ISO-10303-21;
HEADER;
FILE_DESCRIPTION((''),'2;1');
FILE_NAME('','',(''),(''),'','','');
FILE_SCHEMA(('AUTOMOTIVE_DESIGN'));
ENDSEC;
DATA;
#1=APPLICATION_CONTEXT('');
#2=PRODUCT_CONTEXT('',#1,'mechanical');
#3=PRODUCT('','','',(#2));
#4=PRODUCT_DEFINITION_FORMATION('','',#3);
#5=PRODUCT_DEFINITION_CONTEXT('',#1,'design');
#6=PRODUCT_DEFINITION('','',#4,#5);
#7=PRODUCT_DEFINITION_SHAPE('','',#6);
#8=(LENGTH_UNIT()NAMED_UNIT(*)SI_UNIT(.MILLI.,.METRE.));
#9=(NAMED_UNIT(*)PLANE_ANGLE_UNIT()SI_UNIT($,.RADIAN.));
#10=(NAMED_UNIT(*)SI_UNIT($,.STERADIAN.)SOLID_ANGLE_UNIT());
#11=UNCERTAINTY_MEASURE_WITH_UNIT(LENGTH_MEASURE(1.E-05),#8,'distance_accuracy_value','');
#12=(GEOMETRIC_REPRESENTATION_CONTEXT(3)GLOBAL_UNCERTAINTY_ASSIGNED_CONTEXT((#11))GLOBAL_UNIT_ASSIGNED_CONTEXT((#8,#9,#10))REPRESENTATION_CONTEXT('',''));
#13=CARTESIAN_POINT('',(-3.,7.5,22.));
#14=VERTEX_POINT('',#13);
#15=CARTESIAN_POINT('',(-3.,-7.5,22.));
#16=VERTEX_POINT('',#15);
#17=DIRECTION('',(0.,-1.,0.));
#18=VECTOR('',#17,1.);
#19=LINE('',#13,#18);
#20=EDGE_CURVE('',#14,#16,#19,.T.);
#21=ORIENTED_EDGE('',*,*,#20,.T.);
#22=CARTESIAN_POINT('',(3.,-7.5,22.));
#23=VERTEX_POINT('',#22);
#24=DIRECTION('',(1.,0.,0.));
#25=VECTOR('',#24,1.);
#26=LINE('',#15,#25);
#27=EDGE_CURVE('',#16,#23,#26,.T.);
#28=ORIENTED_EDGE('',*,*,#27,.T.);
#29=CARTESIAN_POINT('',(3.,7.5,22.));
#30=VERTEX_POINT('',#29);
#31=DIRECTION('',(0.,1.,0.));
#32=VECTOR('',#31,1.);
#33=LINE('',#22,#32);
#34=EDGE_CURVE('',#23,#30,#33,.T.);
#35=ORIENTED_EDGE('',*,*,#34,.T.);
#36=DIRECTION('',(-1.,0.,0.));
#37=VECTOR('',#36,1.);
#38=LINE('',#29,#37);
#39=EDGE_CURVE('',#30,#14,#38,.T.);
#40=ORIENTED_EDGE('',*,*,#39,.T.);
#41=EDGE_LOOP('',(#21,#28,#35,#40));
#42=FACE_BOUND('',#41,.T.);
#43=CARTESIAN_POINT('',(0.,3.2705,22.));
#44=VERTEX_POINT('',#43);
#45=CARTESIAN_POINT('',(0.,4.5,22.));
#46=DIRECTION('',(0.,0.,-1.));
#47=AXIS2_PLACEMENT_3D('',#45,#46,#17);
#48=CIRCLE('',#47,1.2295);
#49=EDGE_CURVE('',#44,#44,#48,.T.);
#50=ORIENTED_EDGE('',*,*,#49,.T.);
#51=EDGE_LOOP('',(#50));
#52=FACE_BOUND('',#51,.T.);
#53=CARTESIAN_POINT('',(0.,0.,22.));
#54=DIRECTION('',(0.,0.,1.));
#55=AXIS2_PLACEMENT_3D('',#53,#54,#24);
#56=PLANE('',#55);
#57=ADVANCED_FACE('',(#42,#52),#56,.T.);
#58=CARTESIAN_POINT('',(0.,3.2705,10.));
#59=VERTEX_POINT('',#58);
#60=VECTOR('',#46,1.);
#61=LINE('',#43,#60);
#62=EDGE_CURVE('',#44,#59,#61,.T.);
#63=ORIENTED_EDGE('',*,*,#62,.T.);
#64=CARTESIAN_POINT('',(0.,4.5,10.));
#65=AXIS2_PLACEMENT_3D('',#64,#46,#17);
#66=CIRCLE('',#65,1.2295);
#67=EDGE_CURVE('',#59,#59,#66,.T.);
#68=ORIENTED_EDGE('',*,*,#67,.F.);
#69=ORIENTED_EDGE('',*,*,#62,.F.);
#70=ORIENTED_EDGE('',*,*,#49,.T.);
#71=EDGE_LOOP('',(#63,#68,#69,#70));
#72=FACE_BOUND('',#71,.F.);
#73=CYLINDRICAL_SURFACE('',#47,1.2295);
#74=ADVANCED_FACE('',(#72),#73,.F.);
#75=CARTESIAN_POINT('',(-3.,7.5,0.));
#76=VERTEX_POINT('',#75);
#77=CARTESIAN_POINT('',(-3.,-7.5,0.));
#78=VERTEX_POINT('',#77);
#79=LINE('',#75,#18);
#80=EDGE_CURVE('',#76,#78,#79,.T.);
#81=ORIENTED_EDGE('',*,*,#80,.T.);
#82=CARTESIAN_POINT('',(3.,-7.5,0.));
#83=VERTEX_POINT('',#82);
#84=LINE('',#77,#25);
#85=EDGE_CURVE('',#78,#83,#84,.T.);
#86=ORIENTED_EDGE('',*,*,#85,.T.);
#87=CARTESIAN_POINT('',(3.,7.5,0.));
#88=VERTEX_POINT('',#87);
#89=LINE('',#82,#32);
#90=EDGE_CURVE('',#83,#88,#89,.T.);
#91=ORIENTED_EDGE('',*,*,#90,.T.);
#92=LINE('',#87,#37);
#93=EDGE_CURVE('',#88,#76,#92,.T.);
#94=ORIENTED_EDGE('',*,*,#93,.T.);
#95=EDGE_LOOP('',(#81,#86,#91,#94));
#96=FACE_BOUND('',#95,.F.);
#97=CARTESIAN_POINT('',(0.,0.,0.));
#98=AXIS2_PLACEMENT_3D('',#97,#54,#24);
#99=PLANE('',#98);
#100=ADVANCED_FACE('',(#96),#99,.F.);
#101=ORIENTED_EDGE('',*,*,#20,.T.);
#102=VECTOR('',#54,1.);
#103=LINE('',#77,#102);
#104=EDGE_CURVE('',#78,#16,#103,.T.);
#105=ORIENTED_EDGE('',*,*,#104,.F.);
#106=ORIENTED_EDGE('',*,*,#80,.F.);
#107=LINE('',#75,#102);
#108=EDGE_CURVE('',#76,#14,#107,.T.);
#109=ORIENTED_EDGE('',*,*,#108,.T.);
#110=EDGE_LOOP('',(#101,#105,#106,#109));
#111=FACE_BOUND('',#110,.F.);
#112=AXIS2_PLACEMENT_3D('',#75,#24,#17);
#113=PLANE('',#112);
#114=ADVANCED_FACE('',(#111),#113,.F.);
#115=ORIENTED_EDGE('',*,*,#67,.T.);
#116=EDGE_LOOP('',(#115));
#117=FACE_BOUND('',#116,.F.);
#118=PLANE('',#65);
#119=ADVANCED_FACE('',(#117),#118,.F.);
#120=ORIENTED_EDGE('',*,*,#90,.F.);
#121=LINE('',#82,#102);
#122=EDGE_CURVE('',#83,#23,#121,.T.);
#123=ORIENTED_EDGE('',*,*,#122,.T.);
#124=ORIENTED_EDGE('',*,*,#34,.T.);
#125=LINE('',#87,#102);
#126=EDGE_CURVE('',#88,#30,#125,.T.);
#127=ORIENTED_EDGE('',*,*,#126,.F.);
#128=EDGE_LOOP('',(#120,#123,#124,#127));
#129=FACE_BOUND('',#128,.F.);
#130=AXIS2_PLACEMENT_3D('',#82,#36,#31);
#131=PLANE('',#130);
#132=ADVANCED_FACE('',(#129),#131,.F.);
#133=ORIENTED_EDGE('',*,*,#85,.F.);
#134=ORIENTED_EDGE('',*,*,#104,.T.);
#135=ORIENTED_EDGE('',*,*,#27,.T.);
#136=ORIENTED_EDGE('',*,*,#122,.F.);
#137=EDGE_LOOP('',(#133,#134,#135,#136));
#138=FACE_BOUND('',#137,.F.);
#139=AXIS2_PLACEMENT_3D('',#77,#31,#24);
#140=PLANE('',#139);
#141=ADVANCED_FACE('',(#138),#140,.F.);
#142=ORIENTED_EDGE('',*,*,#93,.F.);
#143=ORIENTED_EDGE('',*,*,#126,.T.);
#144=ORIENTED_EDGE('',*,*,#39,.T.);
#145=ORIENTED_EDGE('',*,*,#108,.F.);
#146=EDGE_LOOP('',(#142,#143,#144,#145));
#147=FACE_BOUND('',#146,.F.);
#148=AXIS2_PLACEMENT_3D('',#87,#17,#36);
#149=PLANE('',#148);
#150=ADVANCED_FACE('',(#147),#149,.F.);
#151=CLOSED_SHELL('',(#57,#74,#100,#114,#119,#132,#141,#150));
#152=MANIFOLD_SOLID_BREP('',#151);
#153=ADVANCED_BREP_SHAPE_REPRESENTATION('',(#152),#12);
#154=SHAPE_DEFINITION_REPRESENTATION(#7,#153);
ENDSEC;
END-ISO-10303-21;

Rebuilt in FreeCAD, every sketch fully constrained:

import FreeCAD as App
import Part
import Sketcher
Q = App.Units.Quantity


def add_polygon(sketch, points):
    """Adds a closed chain of lines whose ends are joined by coincident constraints."""
    first, n = sketch.GeometryCount, len(points)
    for a, b in zip(points, points[1:] + points[:1]):
        sketch.addGeometry(Part.LineSegment(App.Vector(*a, 0), App.Vector(*b, 0)), False)
    for i in range(n):
        sketch.addConstraint(Sketcher.Constraint("Coincident", first + i, 2, first + (i + 1) % n, 1))

doc = App.newDocument("Part")
body = doc.addObject("PartDesign::Body", "Body")

# Sketch on XY plane
sketch1 = body.newObject("Sketcher::SketchObject", "Sketch")
sketch1.AttachmentSupport = (doc.getObject("XY_Plane"), [""])
sketch1.MapMode = "FlatFace"
add_polygon(sketch1, [(-3, 8), (-3, -8), (3, -8), (3, 8)])  # lines 0-3
sketch1.addConstraint([
    Sketcher.Constraint("Vertical", 0),
    Sketcher.Constraint("Horizontal", 1),
    Sketcher.Constraint("Vertical", 2),
    Sketcher.Constraint("Horizontal", 3),
    Sketcher.Constraint("Symmetric", 0, 2, 2, 2, -1, 1),
    Sketcher.Constraint("DistanceX", 0, 2, -1, 1, Q("3 mm")),
    Sketcher.Constraint("DistanceY", 0, 2, 0, 1, Q("15 mm")),
])
pad1 = body.newObject("PartDesign::Pad", "Pad")
pad1.Profile = sketch1
pad1.Length = 22

# Sketch on XY plane
sketch2 = body.newObject("Sketcher::SketchObject", "Sketch001")
sketch2.AttachmentSupport = (doc.getObject("XY_Plane"), [""])
sketch2.MapMode = "FlatFace"
sketch2.AttachmentOffset = App.Placement(App.Vector(0, 0, 22), App.Rotation())
sketch2.addGeometry(Part.Circle(App.Vector(0, 4.5, 0), App.Vector(0, 0, 1), 1.2), False)
sketch2.addConstraint([
    Sketcher.Constraint("PointOnObject", 0, 3, -2),
    Sketcher.Constraint("Diameter", 0, Q("2.459 mm")),
    Sketcher.Constraint("DistanceY", -1, 1, 0, 3, Q("4.5 mm")),
])
doc.recompute()
hole = body.newObject("PartDesign::Hole", "Hole")
hole.Profile = sketch2
hole.ThreadType = "None"
hole.Diameter = 2.459
hole.DepthType = "Dimension"
hole.Depth = 12
hole.DrillPoint = "Flat"

doc.recompute()
